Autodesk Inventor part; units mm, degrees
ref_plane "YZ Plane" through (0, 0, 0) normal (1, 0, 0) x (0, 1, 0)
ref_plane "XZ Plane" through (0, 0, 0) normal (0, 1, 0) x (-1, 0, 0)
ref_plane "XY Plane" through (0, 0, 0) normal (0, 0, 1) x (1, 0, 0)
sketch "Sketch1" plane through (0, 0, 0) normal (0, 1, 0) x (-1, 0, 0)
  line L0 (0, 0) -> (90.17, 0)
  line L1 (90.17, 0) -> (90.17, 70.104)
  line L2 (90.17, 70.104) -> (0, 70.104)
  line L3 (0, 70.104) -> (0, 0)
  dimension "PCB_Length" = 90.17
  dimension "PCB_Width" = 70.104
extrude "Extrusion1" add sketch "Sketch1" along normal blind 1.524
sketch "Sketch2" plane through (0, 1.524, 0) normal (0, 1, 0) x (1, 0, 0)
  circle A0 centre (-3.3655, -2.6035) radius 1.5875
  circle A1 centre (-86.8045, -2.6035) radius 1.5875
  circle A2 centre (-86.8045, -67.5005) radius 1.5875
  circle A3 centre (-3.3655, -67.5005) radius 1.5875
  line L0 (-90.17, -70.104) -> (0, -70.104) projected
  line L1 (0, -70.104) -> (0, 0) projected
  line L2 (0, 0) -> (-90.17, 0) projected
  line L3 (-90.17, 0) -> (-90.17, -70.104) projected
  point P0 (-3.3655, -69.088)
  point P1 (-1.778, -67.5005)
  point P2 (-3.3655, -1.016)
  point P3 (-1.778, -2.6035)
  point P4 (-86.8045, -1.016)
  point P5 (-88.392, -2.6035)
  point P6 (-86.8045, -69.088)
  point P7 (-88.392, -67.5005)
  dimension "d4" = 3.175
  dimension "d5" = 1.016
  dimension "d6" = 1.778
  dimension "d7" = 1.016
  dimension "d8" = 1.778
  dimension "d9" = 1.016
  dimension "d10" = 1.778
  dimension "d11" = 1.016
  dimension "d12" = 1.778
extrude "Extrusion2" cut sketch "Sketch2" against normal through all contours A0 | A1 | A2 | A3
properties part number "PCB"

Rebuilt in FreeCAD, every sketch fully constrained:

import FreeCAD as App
import Part
import Sketcher

V = App.Vector
Q = App.Units.Quantity


def add_polygon(sketch, points):
    """Adds a closed chain of lines whose ends are joined by coincident constraints."""
    first, n = sketch.GeometryCount, len(points)
    for a, b in zip(points, points[1:] + points[:1]):
        sketch.addGeometry(Part.LineSegment(App.Vector(*a, 0), App.Vector(*b, 0)), False)
    for i in range(n):
        sketch.addConstraint(Sketcher.Constraint("Coincident", first + i, 2, first + (i + 1) % n, 1))

doc = App.newDocument("Part")
params = doc.addObject("Spreadsheet::Sheet", "Params")
for row, (alias, value) in enumerate([
    ("sketch1_width", "3.55 in"),
    ("sketch1_height", "2.76 in"),
    ("pad1_length", "0.06 in"),
    ("sketch2_diameter", "0.125 in"),
], start=1):
    params.set(f"A{row}", alias)
    params.set(f"B{row}", "=" + value)
    params.setAlias(f"B{row}", alias)

body = doc.addObject("PartDesign::Body", "Body")

# Sketch on XZ plane
sketch1 = body.newObject("Sketcher::SketchObject", "Sketch")
sketch1.AttachmentSupport = (doc.getObject("XZ_Plane"), [""])
sketch1.MapMode = "FlatFace"
add_polygon(sketch1, [(0, 70.104), (0, 0), (-90.17, 0), (-90.17, 70.104)])  # lines 0-3
sketch1.addConstraint([
    Sketcher.Constraint("Vertical", 0),
    Sketcher.Constraint("Horizontal", 1),
    Sketcher.Constraint("Vertical", 2),
    Sketcher.Constraint("Horizontal", 3),
    Sketcher.Constraint("Coincident", 0, 2, -1, 1),
    Sketcher.Constraint("DistanceX", 1, 2, 1, 1, Q("3.55 in")),
    Sketcher.Constraint("DistanceY", 0, 2, 0, 1, Q("2.76 in")),
])
sketch1.setExpression("Constraints[9]", "Params.sketch1_width")
sketch1.setExpression("Constraints[10]", "Params.sketch1_height")
pad1 = body.newObject("PartDesign::Pad", "Pad")
pad1.Profile = sketch1
pad1.setExpression("Length", "Params.pad1_length")
pad1.Reversed = True

# Sketch on XZ plane
sketch2 = body.newObject("Sketcher::SketchObject", "Sketch001")
sketch2.AttachmentSupport = (doc.getObject("XZ_Plane"), [""])
sketch2.MapMode = "FlatFace"
sketch2.AttachmentOffset = App.Placement(V(0, 0, -0.06 * 25.4), App.Rotation())
sketch2.addGeometry([
    Part.Circle(V(-3.3655, 2.6035, 0), V(0, 0, 1), 1.5875),
    Part.Circle(V(-86.8045, 2.6035, 0), V(0, 0, 1), 1.5875),
    Part.Circle(V(-86.8045, 67.5005, 0), V(0, 0, 1), 1.5875),
    Part.Circle(V(-3.3655, 67.5005, 0), V(0, 0, 1), 1.5875),
], False)
sketch2.addConstraint([
    Sketcher.Constraint("Equal", 0, 1),
    Sketcher.Constraint("Equal", 1, 2),
    Sketcher.Constraint("Equal", 2, 3),
    Sketcher.Constraint("Horizontal", 0, 3, 1, 3),
    Sketcher.Constraint("Horizontal", 2, 3, 3, 3),
    Sketcher.Constraint("Vertical", 1, 3, 2, 3),
    Sketcher.Constraint("Vertical", 0, 3, 3, 3),
    Sketcher.Constraint("Diameter", 0, Q("0.125 in")),
    Sketcher.Constraint("DistanceX", 1, 3, 0, 3, Q("3.285 in")),
    Sketcher.Constraint("DistanceY", 1, 3, 2, 3, Q("2.555 in")),
    Sketcher.Constraint("DistanceX", 0, 3, -1, 1, Q("0.1325 in")),
    Sketcher.Constraint("DistanceY", -1, 1, 0, 3, Q("0.1025 in")),
])
sketch2.setExpression("Constraints[7]", "Params.sketch2_diameter")
pocket1 = body.newObject("PartDesign::Pocket", "Pocket")
pocket1.Profile = sketch2
pocket1.Type = "ThroughAll"
pocket1.Reversed = True

doc.recompute()
